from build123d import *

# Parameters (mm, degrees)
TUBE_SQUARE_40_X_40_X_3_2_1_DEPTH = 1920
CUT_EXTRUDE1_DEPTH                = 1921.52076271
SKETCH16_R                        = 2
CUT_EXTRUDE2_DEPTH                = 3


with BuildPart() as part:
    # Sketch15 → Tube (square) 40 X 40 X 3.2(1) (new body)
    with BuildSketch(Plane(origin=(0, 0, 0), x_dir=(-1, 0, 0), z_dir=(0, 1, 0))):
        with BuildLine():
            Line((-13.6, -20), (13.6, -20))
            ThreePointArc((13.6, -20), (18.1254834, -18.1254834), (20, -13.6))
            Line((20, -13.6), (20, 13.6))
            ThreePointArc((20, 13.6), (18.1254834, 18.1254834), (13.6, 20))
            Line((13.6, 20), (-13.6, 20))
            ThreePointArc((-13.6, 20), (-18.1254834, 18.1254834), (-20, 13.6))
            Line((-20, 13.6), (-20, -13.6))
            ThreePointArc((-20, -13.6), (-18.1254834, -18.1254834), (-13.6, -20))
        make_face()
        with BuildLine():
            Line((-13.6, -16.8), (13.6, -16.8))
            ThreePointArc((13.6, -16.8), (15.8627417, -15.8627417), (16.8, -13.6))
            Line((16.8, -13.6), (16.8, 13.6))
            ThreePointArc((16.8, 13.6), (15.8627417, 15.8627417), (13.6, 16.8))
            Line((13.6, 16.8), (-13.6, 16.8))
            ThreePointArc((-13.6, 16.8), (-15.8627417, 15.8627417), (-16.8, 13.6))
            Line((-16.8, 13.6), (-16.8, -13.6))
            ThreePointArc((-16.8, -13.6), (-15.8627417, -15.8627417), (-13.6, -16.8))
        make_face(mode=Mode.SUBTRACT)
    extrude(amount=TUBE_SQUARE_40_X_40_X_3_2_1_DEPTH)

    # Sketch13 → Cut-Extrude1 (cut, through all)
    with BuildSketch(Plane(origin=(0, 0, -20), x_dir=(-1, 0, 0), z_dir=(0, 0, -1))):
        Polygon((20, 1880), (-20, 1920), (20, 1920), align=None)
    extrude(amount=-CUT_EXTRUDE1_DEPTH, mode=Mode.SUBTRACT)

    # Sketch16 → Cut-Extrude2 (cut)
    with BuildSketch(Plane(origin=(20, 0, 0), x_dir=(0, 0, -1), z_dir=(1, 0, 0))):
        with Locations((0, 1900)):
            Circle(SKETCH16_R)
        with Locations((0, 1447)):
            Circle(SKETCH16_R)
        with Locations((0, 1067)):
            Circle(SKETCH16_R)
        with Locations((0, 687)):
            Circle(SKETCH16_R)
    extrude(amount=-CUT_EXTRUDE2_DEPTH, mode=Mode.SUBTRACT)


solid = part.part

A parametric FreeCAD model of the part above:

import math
import FreeCAD as App
import Part
import Sketcher
Q = App.Units.Quantity


def add_polygon(sketch, points):
    """Adds a closed chain of lines whose ends are joined by coincident constraints."""
    first, n = sketch.GeometryCount, len(points)
    for a, b in zip(points, points[1:] + points[:1]):
        sketch.addGeometry(Part.LineSegment(App.Vector(*a, 0), App.Vector(*b, 0)), False)
    for i in range(n):
        sketch.addConstraint(Sketcher.Constraint("Coincident", first + i, 2, first + (i + 1) % n, 1))

doc = App.newDocument("Part")
params = doc.addObject("Spreadsheet::Sheet", "Params")
for row, (alias, value) in enumerate([
    ("sketch1_radius", "6.4 mm"),
    ("sketch1_radius2", "3.2 mm"),
    ("sketch1_width", "27.2 mm"),
    ("pad1_length", "1920 mm"),
    ("sketch2_width", "40 mm"),
    ("sketch3_diameter", "4 mm"),
    ("pocket2_length", "3 mm"),
], start=1):
    params.set(f"A{row}", alias)
    params.set(f"B{row}", "=" + value)
    params.setAlias(f"B{row}", alias)

body = doc.addObject("PartDesign::Body", "Body")

sketch1 = body.newObject("Sketcher::SketchObject", "Sketch")
sketch1.AttachmentSupport = (doc.getObject("XZ_Plane"), [""])
sketch1.MapMode = "FlatFace"
sketch1.addGeometry([
    Part.LineSegment(App.Vector(13.6, -20, 0), App.Vector(-13.6, -20, 0)),
    Part.ArcOfCircle(Part.Circle(App.Vector(-13.6, -13.6, 0), App.Vector(0, 0, 1), 6.4), math.radians(180), math.radians(270)),
    Part.LineSegment(App.Vector(-20, -13.6, 0), App.Vector(-20, 13.6, 0)),
    Part.ArcOfCircle(Part.Circle(App.Vector(-13.6, 13.6, 0), App.Vector(0, 0, 1), 6.4), math.radians(90), math.radians(180)),
    Part.LineSegment(App.Vector(-13.6, 20, 0), App.Vector(13.6, 20, 0)),
    Part.ArcOfCircle(Part.Circle(App.Vector(13.6, 13.6, 0), App.Vector(0, 0, 1), 6.4), math.radians(0), math.radians(90)),
    Part.LineSegment(App.Vector(20, 13.6, 0), App.Vector(20, -13.6, 0)),
    Part.ArcOfCircle(Part.Circle(App.Vector(13.6, -13.6, 0), App.Vector(0, 0, 1), 6.4), math.radians(-90), math.radians(0)),
    Part.LineSegment(App.Vector(-13.6, -16.8, 0), App.Vector(13.6, -16.8, 0)),
    Part.ArcOfCircle(Part.Circle(App.Vector(13.6, -13.6, 0), App.Vector(0, 0, 1), 3.2), math.radians(-90), math.radians(0)),
    Part.LineSegment(App.Vector(16.8, -13.6, 0), App.Vector(16.8, 13.6, 0)),
    Part.ArcOfCircle(Part.Circle(App.Vector(13.6, 13.6, 0), App.Vector(0, 0, 1), 3.2), math.radians(0), math.radians(90)),
    Part.LineSegment(App.Vector(13.6, 16.8, 0), App.Vector(-13.6, 16.8, 0)),
    Part.ArcOfCircle(Part.Circle(App.Vector(-13.6, 13.6, 0), App.Vector(0, 0, 1), 3.2), math.radians(90), math.radians(180)),
    Part.LineSegment(App.Vector(-16.8, 13.6, 0), App.Vector(-16.8, -13.6, 0)),
    Part.ArcOfCircle(Part.Circle(App.Vector(-13.6, -13.6, 0), App.Vector(0, 0, 1), 3.2), math.radians(180), math.radians(270)),
], False)
sketch1.addConstraint([
    Sketcher.Constraint("Tangent", 0, 2, 1, 2),
    Sketcher.Constraint("Tangent", 1, 1, 2, 1),
    Sketcher.Constraint("Tangent", 2, 2, 3, 2),
    Sketcher.Constraint("Tangent", 3, 1, 4, 1),
    Sketcher.Constraint("Tangent", 4, 2, 5, 2),
    Sketcher.Constraint("Tangent", 5, 1, 6, 1),
    Sketcher.Constraint("Tangent", 6, 2, 7, 2),
    Sketcher.Constraint("Tangent", 7, 1, 0, 1),
    Sketcher.Constraint("Tangent", 8, 2, 9, 1),
    Sketcher.Constraint("Tangent", 9, 2, 10, 1),
    Sketcher.Constraint("Tangent", 10, 2, 11, 1),
    Sketcher.Constraint("Tangent", 11, 2, 12, 1),
    Sketcher.Constraint("Tangent", 12, 2, 13, 1),
    Sketcher.Constraint("Tangent", 13, 2, 14, 1),
    Sketcher.Constraint("Tangent", 14, 2, 15, 1),
    Sketcher.Constraint("Tangent", 15, 2, 8, 1),
    Sketcher.Constraint("Horizontal", 0),
    Sketcher.Constraint("Vertical", 2),
    Sketcher.Constraint("Horizontal", 4),
    Sketcher.Constraint("Vertical", 6),
    Sketcher.Constraint("Horizontal", 8),
    Sketcher.Constraint("Vertical", 10),
    Sketcher.Constraint("Horizontal", 12),
    Sketcher.Constraint("Vertical", 14),
    Sketcher.Constraint("Coincident", 9, 3, 7, 3),
    Sketcher.Constraint("Coincident", 11, 3, 5, 3),
    Sketcher.Constraint("Coincident", 13, 3, 3, 3),
    Sketcher.Constraint("Equal", 1, 3),
    Sketcher.Constraint("Equal", 3, 5),
    Sketcher.Constraint("Equal", 5, 7),
    Sketcher.Constraint("Equal", 13, 15),
    Sketcher.Constraint("Symmetric", 1, 3, 5, 3, -1, 1),
    Sketcher.Constraint("Equal", 12, 2),
    Sketcher.Constraint("Radius", 1, Q("6.4 mm")),
    Sketcher.Constraint("Radius", 9, Q("3.2 mm")),
    Sketcher.Constraint("DistanceX", 0, 2, 0, 1, Q("27.2 mm")),
])
sketch1.setExpression("Constraints[33]", "Params.sketch1_radius")
sketch1.setExpression("Constraints[34]", "Params.sketch1_radius2")
sketch1.setExpression("Constraints[35]", "Params.sketch1_width")
pad1 = body.newObject("PartDesign::Pad", "Pad")
pad1.Profile = sketch1
pad1.setExpression("Length", "Params.pad1_length")
pad1.Reversed = True

sketch2 = body.newObject("Sketcher::SketchObject", "Sketch001")
sketch2.AttachmentSupport = (doc.getObject("XY_Plane"), [""])
sketch2.MapMode = "FlatFace"
sketch2.AttachmentOffset = App.Placement(App.Vector(0, 0, -20), App.Rotation())
add_polygon(sketch2, [(20, 1920), (-20, 1880), (-20, 1920)])
sketch2.addConstraint([
    Sketcher.Constraint("Vertical", 1),
    Sketcher.Constraint("Horizontal", 2),
    Sketcher.Constraint("Equal", 2, 1),
    Sketcher.Constraint("DistanceX", 2, 1, 2, 2, Q("40 mm")),
    Sketcher.Constraint("DistanceX", 0, 2, -1, 1, Q("20 mm")),
    Sketcher.Constraint("DistanceY", -1, 1, 0, 2, Q("1880 mm")),
])
sketch2.setExpression("Constraints[6]", "Params.sketch2_width")
pocket1 = body.newObject("PartDesign::Pocket", "Pocket")
pocket1.Profile = sketch2
pocket1.Type = "ThroughAll"
pocket1.Reversed = True

sketch3 = body.newObject("Sketcher::SketchObject", "Sketch002")
sketch3.AttachmentSupport = (doc.getObject("YZ_Plane"), [""])
sketch3.MapMode = "FlatFace"
sketch3.AttachmentOffset = App.Placement(App.Vector(0, 0, 20), App.Rotation())
sketch3.addGeometry([
    Part.Circle(App.Vector(1900, 0, 0), App.Vector(0, 0, 1), 2),
    Part.Circle(App.Vector(1447, 0, 0), App.Vector(0, 0, 1), 2),
    Part.Circle(App.Vector(1067, 0, 0), App.Vector(0, 0, 1), 2),
    Part.Circle(App.Vector(687, 0, 0), App.Vector(0, 0, 1), 2),
], False)
sketch3.addConstraint([
    Sketcher.Constraint("Equal", 0, 1),
    Sketcher.Constraint("Equal", 1, 2),
    Sketcher.Constraint("Equal", 2, 3),
    Sketcher.Constraint("PointOnObject", 0, 3, -1),
    Sketcher.Constraint("PointOnObject", 1, 3, -1),
    Sketcher.Constraint("PointOnObject", 2, 3, -1),
    Sketcher.Constraint("PointOnObject", 3, 3, -1),
    Sketcher.Constraint("Diameter", 0, Q("4 mm")),
    Sketcher.Constraint("DistanceX", -1, 1, 0, 3, Q("1900 mm")),
    Sketcher.Constraint("DistanceX", -1, 1, 1, 3, Q("1447 mm")),
    Sketcher.Constraint("DistanceX", -1, 1, 2, 3, Q("1067 mm")),
    Sketcher.Constraint("DistanceX", -1, 1, 3, 3, Q("687 mm")),
])
sketch3.setExpression("Constraints[7]", "Params.sketch3_diameter")
pocket2 = body.newObject("PartDesign::Pocket", "Pocket001")
pocket2.Profile = sketch3
pocket2.setExpression("Length", "Params.pocket2_length")

doc.recompute()
